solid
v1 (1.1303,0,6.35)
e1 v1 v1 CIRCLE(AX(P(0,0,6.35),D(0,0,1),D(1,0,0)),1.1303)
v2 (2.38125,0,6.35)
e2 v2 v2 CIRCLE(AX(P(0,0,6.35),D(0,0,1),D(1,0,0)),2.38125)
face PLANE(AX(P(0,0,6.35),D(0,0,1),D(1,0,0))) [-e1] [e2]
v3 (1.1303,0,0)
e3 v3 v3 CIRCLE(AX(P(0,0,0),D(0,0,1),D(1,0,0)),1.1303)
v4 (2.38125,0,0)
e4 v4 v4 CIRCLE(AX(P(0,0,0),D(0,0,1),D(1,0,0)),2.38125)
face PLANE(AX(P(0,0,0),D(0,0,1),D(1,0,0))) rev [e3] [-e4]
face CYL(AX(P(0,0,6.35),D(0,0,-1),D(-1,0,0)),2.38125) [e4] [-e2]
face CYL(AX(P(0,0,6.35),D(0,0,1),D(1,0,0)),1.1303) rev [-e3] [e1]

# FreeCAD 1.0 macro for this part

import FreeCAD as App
import Part
import Sketcher
from FreeCAD import Vector
Q = App.Units.Quantity

doc = App.newDocument("Part")
body = doc.addObject("PartDesign::Body", "Body")

# Sketch on XY plane
sketch1 = doc.addObject("Sketcher::SketchObject", "Sketch")
body.addObject(sketch1)
sketch1.AttachmentSupport = (doc.XY_Plane, [""])
sketch1.MapMode = "FlatFace"
sketch1.addGeometry(Part.Circle(Vector(0, 0, 0), Vector(0, 0, 1), 2.38125), False)
sketch1.addConstraint(Sketcher.Constraint("Coincident", 0, 3, -1, 1))
sketch1.addConstraint(Sketcher.Constraint("Diameter", 0, Q("0.1875 in")))
pad1 = doc.addObject("PartDesign::Pad", "Pad")
body.addObject(pad1)
pad1.Profile = sketch1
pad1.Length = Q("0.25 in")

# Sketch on XY plane
sketch2 = doc.addObject("Sketcher::SketchObject", "Sketch001")
body.addObject(sketch2)
sketch2.AttachmentSupport = (doc.XY_Plane, [""])
sketch2.MapMode = "FlatFace"
sketch2.AttachmentOffset = App.Placement(Vector(0, 0, 0.25 * 25.4), App.Rotation())
sketch2.addGeometry(Part.Circle(Vector(0, 0, 0), Vector(0, 0, 1), 1.1303), False)
sketch2.addConstraint(Sketcher.Constraint("Coincident", 0, 3, -1, 1))
sketch2.addConstraint(Sketcher.Constraint("Diameter", 0, Q("0.089 in")))
doc.recompute()
hole = doc.addObject("PartDesign::Hole", "Hole")
body.addObject(hole)
hole.Profile = sketch2
hole.ThreadType = "None"
hole.Diameter = Q("0.089 in")
hole.DepthType = "ThroughAll"

doc.recompute()
